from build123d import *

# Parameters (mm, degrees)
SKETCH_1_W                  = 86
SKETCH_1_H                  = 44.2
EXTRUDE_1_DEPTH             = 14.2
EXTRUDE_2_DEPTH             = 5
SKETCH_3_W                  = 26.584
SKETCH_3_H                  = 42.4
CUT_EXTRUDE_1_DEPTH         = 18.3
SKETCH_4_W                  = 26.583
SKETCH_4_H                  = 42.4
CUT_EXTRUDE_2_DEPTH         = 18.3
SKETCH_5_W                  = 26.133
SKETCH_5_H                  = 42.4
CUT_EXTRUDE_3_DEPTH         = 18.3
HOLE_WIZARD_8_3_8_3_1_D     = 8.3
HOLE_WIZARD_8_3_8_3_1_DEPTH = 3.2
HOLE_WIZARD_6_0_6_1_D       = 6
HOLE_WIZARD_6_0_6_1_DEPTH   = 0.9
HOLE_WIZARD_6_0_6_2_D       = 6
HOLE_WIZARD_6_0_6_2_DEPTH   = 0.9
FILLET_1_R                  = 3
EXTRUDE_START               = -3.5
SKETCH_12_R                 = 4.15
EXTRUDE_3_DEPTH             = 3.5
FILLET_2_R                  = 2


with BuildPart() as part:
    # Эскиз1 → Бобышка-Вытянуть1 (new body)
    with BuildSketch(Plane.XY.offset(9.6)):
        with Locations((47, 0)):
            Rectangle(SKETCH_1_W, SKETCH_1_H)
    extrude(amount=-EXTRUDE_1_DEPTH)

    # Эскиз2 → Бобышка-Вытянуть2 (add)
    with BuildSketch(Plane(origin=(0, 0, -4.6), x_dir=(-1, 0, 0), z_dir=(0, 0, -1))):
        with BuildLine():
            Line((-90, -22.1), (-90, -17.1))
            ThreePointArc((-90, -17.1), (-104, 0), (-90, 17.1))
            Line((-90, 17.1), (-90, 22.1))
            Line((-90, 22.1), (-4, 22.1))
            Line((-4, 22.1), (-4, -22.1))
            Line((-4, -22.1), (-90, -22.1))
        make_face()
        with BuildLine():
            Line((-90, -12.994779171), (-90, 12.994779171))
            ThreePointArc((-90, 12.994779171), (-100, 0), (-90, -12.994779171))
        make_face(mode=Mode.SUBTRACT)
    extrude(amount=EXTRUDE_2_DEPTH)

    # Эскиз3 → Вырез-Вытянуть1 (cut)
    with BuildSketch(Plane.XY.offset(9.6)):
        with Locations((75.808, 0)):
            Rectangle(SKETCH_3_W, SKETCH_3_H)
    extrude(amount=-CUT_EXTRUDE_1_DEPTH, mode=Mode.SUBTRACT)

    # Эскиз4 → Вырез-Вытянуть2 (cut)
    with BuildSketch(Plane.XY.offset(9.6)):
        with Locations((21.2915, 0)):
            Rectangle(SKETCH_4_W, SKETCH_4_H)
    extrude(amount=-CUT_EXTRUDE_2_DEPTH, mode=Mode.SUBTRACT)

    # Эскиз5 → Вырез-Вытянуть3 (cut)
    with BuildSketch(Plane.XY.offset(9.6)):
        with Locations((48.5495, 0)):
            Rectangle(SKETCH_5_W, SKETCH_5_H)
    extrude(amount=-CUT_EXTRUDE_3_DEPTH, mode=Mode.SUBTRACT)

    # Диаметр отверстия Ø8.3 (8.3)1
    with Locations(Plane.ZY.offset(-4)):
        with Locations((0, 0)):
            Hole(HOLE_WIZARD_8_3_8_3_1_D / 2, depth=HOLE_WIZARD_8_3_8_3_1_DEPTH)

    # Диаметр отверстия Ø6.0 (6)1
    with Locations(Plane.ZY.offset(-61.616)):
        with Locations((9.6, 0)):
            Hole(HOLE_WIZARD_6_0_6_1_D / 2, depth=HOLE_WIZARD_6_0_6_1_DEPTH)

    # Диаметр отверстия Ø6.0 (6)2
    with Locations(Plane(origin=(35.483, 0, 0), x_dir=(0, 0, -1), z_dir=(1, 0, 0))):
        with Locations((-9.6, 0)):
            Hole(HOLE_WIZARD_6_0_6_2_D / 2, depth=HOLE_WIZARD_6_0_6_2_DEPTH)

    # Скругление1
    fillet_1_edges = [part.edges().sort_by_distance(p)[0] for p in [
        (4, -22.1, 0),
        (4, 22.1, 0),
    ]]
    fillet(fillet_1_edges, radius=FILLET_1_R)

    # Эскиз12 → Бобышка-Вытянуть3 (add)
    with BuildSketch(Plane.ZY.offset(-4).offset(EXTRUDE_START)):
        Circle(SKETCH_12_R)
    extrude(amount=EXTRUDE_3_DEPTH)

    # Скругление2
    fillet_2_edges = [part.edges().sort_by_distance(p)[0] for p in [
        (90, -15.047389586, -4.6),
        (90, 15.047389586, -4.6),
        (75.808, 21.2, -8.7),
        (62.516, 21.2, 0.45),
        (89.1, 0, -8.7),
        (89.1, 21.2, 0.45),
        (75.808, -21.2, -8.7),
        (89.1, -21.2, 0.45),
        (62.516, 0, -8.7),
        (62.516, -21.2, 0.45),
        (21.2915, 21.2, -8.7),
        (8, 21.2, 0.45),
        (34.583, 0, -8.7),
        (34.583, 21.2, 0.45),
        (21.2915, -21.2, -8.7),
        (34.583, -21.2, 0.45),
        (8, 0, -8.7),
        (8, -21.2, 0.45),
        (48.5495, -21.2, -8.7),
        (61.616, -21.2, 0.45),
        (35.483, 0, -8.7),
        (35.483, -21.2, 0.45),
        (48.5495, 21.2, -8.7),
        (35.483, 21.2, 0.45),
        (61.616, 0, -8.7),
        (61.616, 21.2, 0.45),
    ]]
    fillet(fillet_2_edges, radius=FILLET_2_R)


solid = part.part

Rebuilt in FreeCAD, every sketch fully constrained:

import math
import FreeCAD as App
import Part
import Sketcher
from FreeCAD import Vector


def edges_at(feature, points):
    """Names of the edges that pass closest to the given points."""
    edges = feature.Shape.Edges
    near = lambda p: min(range(len(edges)), key=lambda i: edges[i].distToShape(Part.Vertex(*p))[0])
    return sorted({f"Edge{near(p) + 1}" for p in points})


def add_polygon(sketch, points):
    """Adds a closed chain of lines whose ends are joined by coincident constraints."""
    first, n = sketch.GeometryCount, len(points)
    for a, b in zip(points, points[1:] + points[:1]):
        sketch.addGeometry(Part.LineSegment(App.Vector(*a, 0), App.Vector(*b, 0)), False)
    for i in range(n):
        sketch.addConstraint(Sketcher.Constraint("Coincident", first + i, 2, first + (i + 1) % n, 1))

doc = App.newDocument("Part")
body = doc.addObject("PartDesign::Body", "Body")

sketch1 = body.newObject("Sketcher::SketchObject", "Sketch")
sketch1.AttachmentSupport = (doc.getObject("XY_Plane"), [""])
sketch1.MapMode = "FlatFace"
sketch1.AttachmentOffset = App.Placement(Vector(0, 0, 9.6), App.Rotation())
add_polygon(sketch1, [(4, 22.1), (4, -22.1), (90, -22.1), (90, 22.1)])
sketch1.addConstraint([
    Sketcher.Constraint("Vertical", 0),
    Sketcher.Constraint("Horizontal", 1),
    Sketcher.Constraint("Vertical", 2),
    Sketcher.Constraint("Horizontal", 3),
    Sketcher.Constraint("DistanceX", 1, 1, 1, 2, 86.0),
    Sketcher.Constraint("DistanceY", 0, 2, 0, 1, 44.2),
    Sketcher.Constraint("DistanceX", -1, 1, 0, 2, 4.0),
    Sketcher.Constraint("DistanceY", 0, 2, -1, 1, 22.1),
])
pad1 = body.newObject("PartDesign::Pad", "Pad")
pad1.Profile = sketch1
pad1.Length = 14.2
pad1.Reversed = True

sketch2 = body.newObject("Sketcher::SketchObject", "Sketch001")
sketch2.AttachmentSupport = (doc.getObject("XY_Plane"), [""])
sketch2.MapMode = "FlatFace"
sketch2.AttachmentOffset = App.Placement(Vector(0, 0, -4.6), App.Rotation())
sketch2.addGeometry([
    Part.LineSegment(Vector(90, -17.1, 0), Vector(90, -22.1, 0)),
    Part.LineSegment(Vector(90, -22.1, 0), Vector(4, -22.1, 0)),
    Part.LineSegment(Vector(4, -22.1, 0), Vector(4, 22.1, 0)),
    Part.LineSegment(Vector(4, 22.1, 0), Vector(90, 22.1, 0)),
    Part.LineSegment(Vector(90, 22.1, 0), Vector(90, 17.1, 0)),
    Part.ArcOfCircle(Part.Circle(Vector(86.556786, 0, 0), Vector(0, 0, 1), 17.443214), math.radians(-78.615296), math.radians(78.615296)),
    Part.ArcOfCircle(Part.Circle(Vector(86.556786, 0, 0), Vector(0, 0, 1), 13.443214), math.radians(-75.15943), math.radians(75.15943)),
    Part.LineSegment(Vector(90, 12.994779, 0), Vector(90, -12.994779, 0)),
], False)
sketch2.addConstraint([
    Sketcher.Constraint("Coincident", 0, 2, 1, 1),
    Sketcher.Constraint("Coincident", 1, 2, 2, 1),
    Sketcher.Constraint("Coincident", 2, 2, 3, 1),
    Sketcher.Constraint("Coincident", 3, 2, 4, 1),
    Sketcher.Constraint("Coincident", 4, 2, 5, 2),
    Sketcher.Constraint("Coincident", 5, 1, 0, 1),
    Sketcher.Constraint("Coincident", 6, 1, 7, 2),
    Sketcher.Constraint("Coincident", 7, 1, 6, 2),
    Sketcher.Constraint("Vertical", 0),
    Sketcher.Constraint("Horizontal", 1),
    Sketcher.Constraint("Vertical", 2),
    Sketcher.Constraint("Horizontal", 3),
    Sketcher.Constraint("Vertical", 4),
    Sketcher.Constraint("Vertical", 7),
    Sketcher.Constraint("Coincident", 6, 3, 5, 3),
    Sketcher.Constraint("Symmetric", 0, 2, 3, 2, -1),
    Sketcher.Constraint("PointOnObject", 5, 3, -1),
    Sketcher.Constraint("Vertical", 5, 1, 6, 1),
    Sketcher.Constraint("DistanceX", 1, 2, 1, 1, 86.0),
    Sketcher.Constraint("DistanceY", 0, 2, 0, 1, 5.0),
    Sketcher.Constraint("DistanceY", 2, 1, 2, 2, 44.2),
    Sketcher.Constraint("DistanceX", -1, 1, 0, 2, 90.0),
    Sketcher.Constraint("Radius", 5, 17.443214),
    Sketcher.Constraint("Radius", 6, 13.443214),
])
pad2 = body.newObject("PartDesign::Pad", "Pad001")
pad2.Profile = sketch2
pad2.Length = 5
pad2.Reversed = True

sketch3 = body.newObject("Sketcher::SketchObject", "Sketch002")
sketch3.AttachmentSupport = (doc.getObject("XY_Plane"), [""])
sketch3.MapMode = "FlatFace"
sketch3.AttachmentOffset = App.Placement(Vector(0, 0, 9.6), App.Rotation())
add_polygon(sketch3, [(62.516, 21.2), (62.516, -21.2), (89.1, -21.2), (89.1, 21.2)])
sketch3.addConstraint([
    Sketcher.Constraint("Vertical", 0),
    Sketcher.Constraint("Horizontal", 1),
    Sketcher.Constraint("Vertical", 2),
    Sketcher.Constraint("Horizontal", 3),
    Sketcher.Constraint("DistanceY", 0, 2, 0, 1, 42.4),
    Sketcher.Constraint("DistanceY", 0, 2, -1, 1, 21.2),
    Sketcher.Constraint("DistanceX", -1, 1, 1, 2, 89.1),
    Sketcher.Constraint("DistanceX", 1, 1, 1, 2, 26.584),
])
pocket1 = body.newObject("PartDesign::Pocket", "Pocket")
pocket1.Profile = sketch3
pocket1.Length = 18.3

sketch4 = body.newObject("Sketcher::SketchObject", "Sketch003")
sketch4.AttachmentSupport = (doc.getObject("XY_Plane"), [""])
sketch4.MapMode = "FlatFace"
sketch4.AttachmentOffset = App.Placement(Vector(0, 0, 9.6), App.Rotation())
add_polygon(sketch4, [(8, 21.2), (8, -21.2), (34.583, -21.2), (34.583, 21.2)])
sketch4.addConstraint([
    Sketcher.Constraint("Vertical", 0),
    Sketcher.Constraint("Horizontal", 1),
    Sketcher.Constraint("Vertical", 2),
    Sketcher.Constraint("Horizontal", 3),
    Sketcher.Constraint("DistanceY", 0, 2, 0, 1, 42.4),
    Sketcher.Constraint("DistanceX", -1, 1, 0, 2, 8.0),
    Sketcher.Constraint("DistanceY", 0, 2, -1, 1, 21.2),
    Sketcher.Constraint("DistanceX", 1, 1, 1, 2, 26.583),
])
pocket2 = body.newObject("PartDesign::Pocket", "Pocket001")
pocket2.Profile = sketch4
pocket2.Length = 18.3

sketch5 = body.newObject("Sketcher::SketchObject", "Sketch004")
sketch5.AttachmentSupport = (doc.getObject("XY_Plane"), [""])
sketch5.MapMode = "FlatFace"
sketch5.AttachmentOffset = App.Placement(Vector(0, 0, 9.6), App.Rotation())
add_polygon(sketch5, [(35.483, 21.2), (35.483, -21.2), (61.616, -21.2), (61.616, 21.2)])
sketch5.addConstraint([
    Sketcher.Constraint("Vertical", 0),
    Sketcher.Constraint("Horizontal", 1),
    Sketcher.Constraint("Vertical", 2),
    Sketcher.Constraint("Horizontal", 3),
    Sketcher.Constraint("DistanceY", 0, 2, 0, 1, 42.4),
    Sketcher.Constraint("DistanceY", 0, 2, -1, 1, 21.2),
    Sketcher.Constraint("DistanceX", 1, 1, 1, 2, 26.133),
    Sketcher.Constraint("DistanceX", -1, 1, 0, 2, 35.483),
])
pocket3 = body.newObject("PartDesign::Pocket", "Pocket002")
pocket3.Profile = sketch5
pocket3.Length = 18.3

sketch6 = body.newObject("Sketcher::SketchObject", "Sketch005")
sketch6.AttachmentSupport = (doc.getObject("YZ_Plane"), [""])
sketch6.MapMode = "FlatFace"
sketch6.AttachmentOffset = App.Placement(Vector(0, 0, 4), App.Rotation())
sketch6.addGeometry(Part.Circle(Vector(0, 0, 0), Vector(0, 0, 1), 4.15), False)
sketch6.addConstraint([
    Sketcher.Constraint("Coincident", 0, 3, -1, 1),
    Sketcher.Constraint("Diameter", 0, 8.3),
])
doc.recompute()
hole = body.newObject("PartDesign::Hole", "Hole")
hole.Profile = sketch6
hole.ThreadType = "None"
hole.Diameter = 8.3
hole.DepthType = "Dimension"
hole.Depth = 3.2
hole.DrillPoint = "Flat"
hole.Reversed = True

sketch7 = body.newObject("Sketcher::SketchObject", "Sketch006")
sketch7.AttachmentSupport = (doc.getObject("YZ_Plane"), [""])
sketch7.MapMode = "FlatFace"
sketch7.AttachmentOffset = App.Placement(Vector(0, 0, 61.616), App.Rotation())
sketch7.addGeometry(Part.Circle(Vector(0, 9.6, 0), Vector(0, 0, 1), 3), False)
sketch7.addConstraint([
    Sketcher.Constraint("PointOnObject", 0, 3, -2),
    Sketcher.Constraint("Diameter", 0, 6.0),
    Sketcher.Constraint("DistanceY", -1, 1, 0, 3, 9.6),
])
doc.recompute()
hole2 = body.newObject("PartDesign::Hole", "Hole001")
hole2.Profile = sketch7
hole2.ThreadType = "None"
hole2.Diameter = 6
hole2.DepthType = "Dimension"
hole2.Depth = 0.9
hole2.DrillPoint = "Flat"
hole2.Reversed = True

sketch8 = body.newObject("Sketcher::SketchObject", "Sketch007")
sketch8.AttachmentSupport = (doc.getObject("YZ_Plane"), [""])
sketch8.MapMode = "FlatFace"
sketch8.AttachmentOffset = App.Placement(Vector(0, 0, 35.483), App.Rotation())
sketch8.addGeometry(Part.Circle(Vector(0, 9.6, 0), Vector(0, 0, 1), 3), False)
sketch8.addConstraint([
    Sketcher.Constraint("PointOnObject", 0, 3, -2),
    Sketcher.Constraint("Diameter", 0, 6.0),
    Sketcher.Constraint("DistanceY", -1, 1, 0, 3, 9.6),
])
doc.recompute()
hole3 = body.newObject("PartDesign::Hole", "Hole002")
hole3.Profile = sketch8
hole3.ThreadType = "None"
hole3.Diameter = 6
hole3.DepthType = "Dimension"
hole3.Depth = 0.9
hole3.DrillPoint = "Flat"
doc.recompute()

fillet = body.newObject("PartDesign::Fillet", "Fillet")
fillet.Base = (hole3, edges_at(hole3, [(4, -22.1, 0), (4, 22.1, 0)]))
fillet.Radius = 3

sketch9 = body.newObject("Sketcher::SketchObject", "Sketch008")
sketch9.AttachmentSupport = (doc.getObject("YZ_Plane"), [""])
sketch9.MapMode = "FlatFace"
sketch9.AttachmentOffset = App.Placement(Vector(0, 0, 7.5), App.Rotation())
sketch9.addGeometry(Part.Circle(Vector(0, 0, 0), Vector(0, 0, 1), 4.15), False)
sketch9.addConstraint([
    Sketcher.Constraint("Coincident", 0, 3, -1, 1),
    Sketcher.Constraint("Diameter", 0, 8.3),
])
pad3 = body.newObject("PartDesign::Pad", "Pad002")
pad3.Profile = sketch9
pad3.Length = 3.5
pad3.Reversed = True
doc.recompute()

fillet2 = body.newObject("PartDesign::Fillet", "Fillet001")
fillet2.Base = (pad3, edges_at(pad3, [
    (90, -15.047, -4.6),
    (90, 15.047, -4.6),
    (75.808, 21.2, -8.7),
    (62.516, 21.2, 0.45),
    (89.1, 0, -8.7),
    (89.1, 21.2, 0.45),
    (75.808, -21.2, -8.7),
    (89.1, -21.2, 0.45),
    (62.516, 0, -8.7),
    (62.516, -21.2, 0.45),
    (21.291, 21.2, -8.7),
    (8, 21.2, 0.45),
    (34.583, 0, -8.7),
    (34.583, 21.2, 0.45),
    (21.291, -21.2, -8.7),
    (34.583, -21.2, 0.45),
    (8, 0, -8.7),
    (8, -21.2, 0.45),
    (48.55, -21.2, -8.7),
    (61.616, -21.2, 0.45),
    (35.483, 0, -8.7),
    (35.483, -21.2, 0.45),
    (48.55, 21.2, -8.7),
    (35.483, 21.2, 0.45),
    (61.616, 0, -8.7),
    (61.616, 21.2, 0.45),
]))
fillet2.Radius = 2

doc.recompute()
